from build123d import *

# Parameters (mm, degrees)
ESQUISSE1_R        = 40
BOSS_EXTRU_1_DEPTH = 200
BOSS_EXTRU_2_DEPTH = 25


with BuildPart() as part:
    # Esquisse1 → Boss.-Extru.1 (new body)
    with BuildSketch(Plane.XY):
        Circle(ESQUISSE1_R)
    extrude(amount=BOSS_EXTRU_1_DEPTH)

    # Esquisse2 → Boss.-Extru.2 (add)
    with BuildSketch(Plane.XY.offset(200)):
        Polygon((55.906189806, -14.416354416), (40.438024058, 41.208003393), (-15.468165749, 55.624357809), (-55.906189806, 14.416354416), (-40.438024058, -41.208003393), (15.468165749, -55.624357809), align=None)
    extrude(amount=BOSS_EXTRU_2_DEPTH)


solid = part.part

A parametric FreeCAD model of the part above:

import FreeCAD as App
import Part
import Sketcher
Q = App.Units.Quantity


def add_polygon(sketch, points):
    """Adds a closed chain of lines whose ends are joined by coincident constraints."""
    first, n = sketch.GeometryCount, len(points)
    for a, b in zip(points, points[1:] + points[:1]):
        sketch.addGeometry(Part.LineSegment(App.Vector(*a, 0), App.Vector(*b, 0)), False)
    for i in range(n):
        sketch.addConstraint(Sketcher.Constraint("Coincident", first + i, 2, first + (i + 1) % n, 1))

doc = App.newDocument("Part")
body = doc.addObject("PartDesign::Body", "Body")

# Sketch on XY plane
sketch1 = body.newObject("Sketcher::SketchObject", "Sketch")
sketch1.AttachmentSupport = (doc.getObject("XY_Plane"), [""])
sketch1.MapMode = "FlatFace"
sketch1.addGeometry(Part.Circle(App.Vector(0, 0, 0), App.Vector(0, 0, 1), 40), False)
sketch1.addConstraint([
    Sketcher.Constraint("Coincident", 0, 3, -1, 1),
    Sketcher.Constraint("Diameter", 0, Q("80 mm")),
])
pad1 = body.newObject("PartDesign::Pad", "Pad")
pad1.Profile = sketch1
pad1.Length = 200

# Sketch on XY plane
sketch2 = body.newObject("Sketcher::SketchObject", "Sketch001")
sketch2.AttachmentSupport = (doc.getObject("XY_Plane"), [""])
sketch2.MapMode = "FlatFace"
sketch2.AttachmentOffset = App.Placement(App.Vector(0, 0, 200), App.Rotation())
add_polygon(sketch2, [(56, -14), (40, 41), (-15, 56), (-56, 14), (-40, -41), (15, -56)])  # lines 0-5
sketch2.addConstraint([
    Sketcher.Constraint("Symmetric", 0, 2, 3, 2, -1, 1),
    Sketcher.Constraint("Symmetric", 1, 2, 4, 2, -1, 1),
    Sketcher.Constraint("Symmetric", 2, 2, 5, 2, -1, 1),
    Sketcher.Constraint("Equal", 0, 1),
    Sketcher.Constraint("Equal", 1, 2),
    Sketcher.Constraint("DistanceX", 2, 2, -1, 1, Q("55.90619 mm")),
    Sketcher.Constraint("DistanceX", 1, 2, 0, 2, Q("55.90619 mm")),
    Sketcher.Constraint("DistanceY", 2, 2, 0, 2, Q("26.791649 mm")),
    Sketcher.Constraint("DistanceX", 3, 2, 1, 2, Q("24.969858 mm")),
])
pad2 = body.newObject("PartDesign::Pad", "Pad001")
pad2.Profile = sketch2
pad2.Length = 25

doc.recompute()
